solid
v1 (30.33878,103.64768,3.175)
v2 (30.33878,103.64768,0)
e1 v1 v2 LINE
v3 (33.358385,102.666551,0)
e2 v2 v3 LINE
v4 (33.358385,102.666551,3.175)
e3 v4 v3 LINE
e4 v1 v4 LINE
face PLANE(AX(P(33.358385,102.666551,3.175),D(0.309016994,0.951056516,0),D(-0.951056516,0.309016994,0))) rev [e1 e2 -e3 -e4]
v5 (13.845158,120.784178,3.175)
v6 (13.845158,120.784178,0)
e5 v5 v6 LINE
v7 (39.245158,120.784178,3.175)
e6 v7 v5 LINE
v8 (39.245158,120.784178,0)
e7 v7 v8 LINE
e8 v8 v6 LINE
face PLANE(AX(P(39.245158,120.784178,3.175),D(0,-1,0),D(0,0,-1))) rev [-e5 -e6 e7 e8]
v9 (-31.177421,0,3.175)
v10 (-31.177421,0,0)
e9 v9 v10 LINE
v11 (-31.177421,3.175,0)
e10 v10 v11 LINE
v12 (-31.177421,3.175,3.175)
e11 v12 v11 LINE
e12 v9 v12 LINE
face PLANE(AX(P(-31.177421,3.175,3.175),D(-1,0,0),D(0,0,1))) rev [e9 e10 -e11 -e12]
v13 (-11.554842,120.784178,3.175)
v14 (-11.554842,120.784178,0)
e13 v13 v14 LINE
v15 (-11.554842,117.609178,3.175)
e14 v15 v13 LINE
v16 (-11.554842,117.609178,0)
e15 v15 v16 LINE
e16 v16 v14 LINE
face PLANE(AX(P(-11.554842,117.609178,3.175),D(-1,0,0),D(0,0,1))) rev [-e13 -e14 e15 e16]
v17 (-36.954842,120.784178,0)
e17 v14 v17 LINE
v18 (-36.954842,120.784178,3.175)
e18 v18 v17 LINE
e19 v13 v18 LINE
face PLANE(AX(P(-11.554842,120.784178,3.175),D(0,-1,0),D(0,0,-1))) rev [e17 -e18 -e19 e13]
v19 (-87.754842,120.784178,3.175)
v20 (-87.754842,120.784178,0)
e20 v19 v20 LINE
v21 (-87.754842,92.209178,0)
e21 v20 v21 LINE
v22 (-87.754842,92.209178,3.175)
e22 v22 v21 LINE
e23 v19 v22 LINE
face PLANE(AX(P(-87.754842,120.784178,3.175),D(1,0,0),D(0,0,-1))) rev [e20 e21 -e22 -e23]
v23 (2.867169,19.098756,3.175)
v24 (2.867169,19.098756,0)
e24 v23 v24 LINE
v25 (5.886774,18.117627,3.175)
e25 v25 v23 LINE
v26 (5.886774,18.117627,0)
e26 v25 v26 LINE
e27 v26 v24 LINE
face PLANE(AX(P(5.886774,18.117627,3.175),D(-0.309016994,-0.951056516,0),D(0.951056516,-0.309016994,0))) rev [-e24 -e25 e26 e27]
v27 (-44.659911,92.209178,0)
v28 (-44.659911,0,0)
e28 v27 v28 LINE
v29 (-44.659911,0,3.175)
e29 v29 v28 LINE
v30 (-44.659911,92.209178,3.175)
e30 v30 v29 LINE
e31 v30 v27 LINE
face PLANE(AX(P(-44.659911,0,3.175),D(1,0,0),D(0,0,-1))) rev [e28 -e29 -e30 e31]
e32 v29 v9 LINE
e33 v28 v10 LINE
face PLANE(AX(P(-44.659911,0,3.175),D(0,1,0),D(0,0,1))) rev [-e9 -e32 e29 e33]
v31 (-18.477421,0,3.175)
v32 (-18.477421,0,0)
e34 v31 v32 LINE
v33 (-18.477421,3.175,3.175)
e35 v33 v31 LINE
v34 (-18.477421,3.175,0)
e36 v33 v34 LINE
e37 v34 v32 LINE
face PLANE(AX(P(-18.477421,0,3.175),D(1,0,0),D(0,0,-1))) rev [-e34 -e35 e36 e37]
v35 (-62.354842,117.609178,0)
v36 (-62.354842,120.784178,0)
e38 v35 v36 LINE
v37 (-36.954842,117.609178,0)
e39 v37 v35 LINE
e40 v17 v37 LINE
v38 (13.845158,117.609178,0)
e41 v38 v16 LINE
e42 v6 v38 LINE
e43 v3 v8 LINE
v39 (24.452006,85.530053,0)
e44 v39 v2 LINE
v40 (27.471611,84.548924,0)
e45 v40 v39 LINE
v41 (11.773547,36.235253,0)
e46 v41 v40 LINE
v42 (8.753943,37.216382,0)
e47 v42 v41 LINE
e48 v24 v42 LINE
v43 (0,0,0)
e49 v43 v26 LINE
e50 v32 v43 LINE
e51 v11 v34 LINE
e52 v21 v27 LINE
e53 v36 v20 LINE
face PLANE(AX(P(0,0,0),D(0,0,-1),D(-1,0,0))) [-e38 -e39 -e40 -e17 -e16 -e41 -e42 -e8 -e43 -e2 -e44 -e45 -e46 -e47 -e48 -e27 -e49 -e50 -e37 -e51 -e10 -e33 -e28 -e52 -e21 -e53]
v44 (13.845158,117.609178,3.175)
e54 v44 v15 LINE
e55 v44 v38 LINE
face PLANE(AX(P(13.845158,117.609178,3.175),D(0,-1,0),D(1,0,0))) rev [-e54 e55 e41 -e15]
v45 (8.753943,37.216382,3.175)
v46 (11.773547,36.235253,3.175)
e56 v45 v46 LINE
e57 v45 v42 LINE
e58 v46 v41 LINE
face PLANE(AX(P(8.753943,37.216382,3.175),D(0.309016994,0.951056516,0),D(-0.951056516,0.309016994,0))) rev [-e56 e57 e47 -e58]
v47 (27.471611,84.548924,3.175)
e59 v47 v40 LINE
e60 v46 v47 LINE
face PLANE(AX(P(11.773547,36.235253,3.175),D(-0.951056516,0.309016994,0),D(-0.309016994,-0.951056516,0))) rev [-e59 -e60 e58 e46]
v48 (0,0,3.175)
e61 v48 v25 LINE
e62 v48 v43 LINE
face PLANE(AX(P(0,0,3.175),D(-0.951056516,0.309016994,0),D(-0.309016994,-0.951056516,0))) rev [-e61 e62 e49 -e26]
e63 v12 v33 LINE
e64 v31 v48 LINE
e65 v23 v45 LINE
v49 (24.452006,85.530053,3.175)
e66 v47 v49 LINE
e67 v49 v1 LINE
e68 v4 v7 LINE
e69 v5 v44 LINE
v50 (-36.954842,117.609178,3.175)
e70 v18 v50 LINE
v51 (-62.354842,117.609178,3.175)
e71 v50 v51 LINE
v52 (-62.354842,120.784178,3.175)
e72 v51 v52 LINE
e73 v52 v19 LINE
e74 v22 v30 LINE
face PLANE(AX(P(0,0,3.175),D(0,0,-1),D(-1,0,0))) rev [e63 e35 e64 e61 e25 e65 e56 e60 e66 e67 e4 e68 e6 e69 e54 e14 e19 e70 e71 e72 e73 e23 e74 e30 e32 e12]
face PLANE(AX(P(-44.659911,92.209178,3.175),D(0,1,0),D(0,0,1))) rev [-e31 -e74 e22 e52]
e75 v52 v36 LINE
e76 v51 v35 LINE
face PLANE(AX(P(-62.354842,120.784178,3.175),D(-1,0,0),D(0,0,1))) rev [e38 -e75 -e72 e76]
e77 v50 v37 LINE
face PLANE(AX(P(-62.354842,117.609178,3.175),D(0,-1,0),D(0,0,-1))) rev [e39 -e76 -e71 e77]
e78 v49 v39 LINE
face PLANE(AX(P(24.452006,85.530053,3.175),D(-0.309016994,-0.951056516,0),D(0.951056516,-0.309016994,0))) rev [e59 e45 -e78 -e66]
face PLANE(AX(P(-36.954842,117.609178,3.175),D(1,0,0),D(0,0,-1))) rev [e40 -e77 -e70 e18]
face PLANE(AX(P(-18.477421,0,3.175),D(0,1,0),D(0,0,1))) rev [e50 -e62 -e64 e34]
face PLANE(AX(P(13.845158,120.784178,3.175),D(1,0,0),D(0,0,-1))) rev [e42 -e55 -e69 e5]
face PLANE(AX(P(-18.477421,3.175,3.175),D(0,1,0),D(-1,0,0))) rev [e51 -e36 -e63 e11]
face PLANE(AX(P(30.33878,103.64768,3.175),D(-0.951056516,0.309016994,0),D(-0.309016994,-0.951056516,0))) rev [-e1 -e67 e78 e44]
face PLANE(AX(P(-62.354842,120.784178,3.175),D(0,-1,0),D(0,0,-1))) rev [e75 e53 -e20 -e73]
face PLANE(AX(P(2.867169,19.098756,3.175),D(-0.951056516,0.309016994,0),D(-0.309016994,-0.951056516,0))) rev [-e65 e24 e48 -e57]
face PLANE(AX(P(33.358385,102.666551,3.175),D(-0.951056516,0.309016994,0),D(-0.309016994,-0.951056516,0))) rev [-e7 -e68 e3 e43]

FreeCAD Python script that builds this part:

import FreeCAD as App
import Part
import Sketcher
from FreeCAD import Vector
Q = App.Units.Quantity

doc = App.newDocument("Part")
params = doc.addObject("Spreadsheet::Sheet", "Params")
for row, (alias, value) in enumerate([
    ("sketch1_width", "1 in"),
    ("sketch1_length", "2 in"),
    ("sketch1_width2", "0.5 in"),
    ("sketch1_length2", "0.75 in"),
    ("sketch1_height", "0.125 in"),
    ("pad1_length", "0.125 in"),
], start=1):
    params.set(f"A{row}", alias)
    params.set(f"B{row}", "=" + value)
    params.setAlias(f"B{row}", alias)

body = doc.addObject("PartDesign::Body", "Body")

# Sketch on XY plane
sketch1 = doc.addObject("Sketcher::SketchObject", "Sketch")
body.addObject(sketch1)
sketch1.AttachmentSupport = (doc.XY_Plane, [""])
sketch1.MapMode = "FlatFace"
sketch1.addGeometry([
    Part.LineSegment(Vector(0, 0, 0), Vector(5.9, 18.1, 0)),  # 0
    Part.LineSegment(Vector(5.9, 18.1, 0), Vector(2.9, 19.1, 0)),  # 1
    Part.LineSegment(Vector(2.9, 19.1, 0), Vector(8.8, 37.2, 0)),  # 2
    Part.LineSegment(Vector(8.8, 37.2, 0), Vector(11.8, 36.2, 0)),  # 3
    Part.LineSegment(Vector(11.8, 36.2, 0), Vector(27.5, 84.5, 0)),  # 4
    Part.LineSegment(Vector(27.5, 84.5, 0), Vector(24.5, 85.5, 0)),  # 5
    Part.LineSegment(Vector(24.5, 85.5, 0), Vector(30.3, 103.6, 0)),  # 6
    Part.LineSegment(Vector(30.3, 103.6, 0), Vector(33.4, 102.7, 0)),  # 7
    Part.LineSegment(Vector(33.4, 102.7, 0), Vector(39.2, 120.8, 0)),  # 8
    Part.LineSegment(Vector(39.2, 120.8, 0), Vector(13.8, 120.8, 0)),  # 9
    Part.LineSegment(Vector(13.8, 120.8, 0), Vector(13.8, 117.6, 0)),  # 10
    Part.LineSegment(Vector(13.8, 117.6, 0), Vector(-11.6, 117.6, 0)),  # 11
    Part.LineSegment(Vector(-11.6, 117.6, 0), Vector(-11.6, 120.8, 0)),  # 12
    Part.LineSegment(Vector(-11.6, 120.8, 0), Vector(-37, 120.8, 0)),  # 13
    Part.LineSegment(Vector(-37, 120.8, 0), Vector(-37, 117.6, 0)),  # 14
    Part.LineSegment(Vector(-37, 117.6, 0), Vector(-62.4, 117.6, 0)),  # 15
    Part.LineSegment(Vector(-62.4, 117.6, 0), Vector(-62.4, 120.8, 0)),  # 16
    Part.LineSegment(Vector(-62.4, 120.8, 0), Vector(-87.8, 120.8, 0)),  # 17
    Part.LineSegment(Vector(-87.8, 120.8, 0), Vector(-87.8, 92.2, 0)),  # 18
    Part.LineSegment(Vector(-87.8, 92.2, 0), Vector(-44.7, 92.2, 0)),  # 19
    Part.LineSegment(Vector(-44.7, 92.2, 0), Vector(-44.7, 0, 0)),  # 20
    Part.LineSegment(Vector(-44.7, 0, 0), Vector(-31.2, 0, 0)),  # 21
    Part.LineSegment(Vector(-31.2, 0, 0), Vector(-31.2, 3.2, 0)),  # 22
    Part.LineSegment(Vector(-31.2, 3.2, 0), Vector(-18.5, 3.2, 0)),  # 23
    Part.LineSegment(Vector(-18.5, 3.2, 0), Vector(-18.5, 0, 0)),  # 24
    Part.LineSegment(Vector(-18.5, 0, 0), Vector(0, 0, 0)),  # 25
], False)
sketch1.addConstraint([
    Sketcher.Constraint("Coincident", 0, 2, 1, 1),
    Sketcher.Constraint("Coincident", 1, 2, 2, 1),
    Sketcher.Constraint("Coincident", 2, 2, 3, 1),
    Sketcher.Constraint("Coincident", 3, 2, 4, 1),
    Sketcher.Constraint("Coincident", 4, 2, 5, 1),
    Sketcher.Constraint("Coincident", 5, 2, 6, 1),
    Sketcher.Constraint("Coincident", 6, 2, 7, 1),
    Sketcher.Constraint("Coincident", 7, 2, 8, 1),
    Sketcher.Constraint("Coincident", 8, 2, 9, 1),
    Sketcher.Constraint("Coincident", 9, 2, 10, 1),
    Sketcher.Constraint("Coincident", 10, 2, 11, 1),
    Sketcher.Constraint("Coincident", 11, 2, 12, 1),
    Sketcher.Constraint("Coincident", 12, 2, 13, 1),
    Sketcher.Constraint("Coincident", 13, 2, 14, 1),
    Sketcher.Constraint("Coincident", 14, 2, 15, 1),
    Sketcher.Constraint("Coincident", 15, 2, 16, 1),
    Sketcher.Constraint("Coincident", 16, 2, 17, 1),
    Sketcher.Constraint("Coincident", 17, 2, 18, 1),
    Sketcher.Constraint("Coincident", 18, 2, 19, 1),
    Sketcher.Constraint("Coincident", 19, 2, 20, 1),
    Sketcher.Constraint("Coincident", 20, 2, 21, 1),
    Sketcher.Constraint("Coincident", 21, 2, 22, 1),
    Sketcher.Constraint("Coincident", 22, 2, 23, 1),
    Sketcher.Constraint("Coincident", 23, 2, 24, 1),
    Sketcher.Constraint("Coincident", 24, 2, 25, 1),
    Sketcher.Constraint("Coincident", 25, 2, 0, 1),
    Sketcher.Constraint("Horizontal", 9),
    Sketcher.Constraint("Vertical", 10),
    Sketcher.Constraint("Horizontal", 11),
    Sketcher.Constraint("Vertical", 12),
    Sketcher.Constraint("Horizontal", 13),
    Sketcher.Constraint("Vertical", 14),
    Sketcher.Constraint("Horizontal", 15),
    Sketcher.Constraint("Vertical", 16),
    Sketcher.Constraint("Horizontal", 17),
    Sketcher.Constraint("Vertical", 18),
    Sketcher.Constraint("Horizontal", 19),
    Sketcher.Constraint("Vertical", 20),
    Sketcher.Constraint("Horizontal", 21),
    Sketcher.Constraint("Vertical", 22),
    Sketcher.Constraint("Horizontal", 23),
    Sketcher.Constraint("Vertical", 24),
    Sketcher.Constraint("Horizontal", 25),
    Sketcher.Constraint("Coincident", 25, 2, -1, 1),
    Sketcher.Constraint("PointOnObject", 20, 2, -1),
    Sketcher.Constraint("Perpendicular", 0, 1),
    Sketcher.Constraint("Perpendicular", 1, 2),
    Sketcher.Constraint("Perpendicular", 2, 3),
    Sketcher.Constraint("Perpendicular", 3, 4),
    Sketcher.Constraint("Perpendicular", 4, 5),
    Sketcher.Constraint("Perpendicular", 5, 6),
    Sketcher.Constraint("Perpendicular", 6, 7),
    Sketcher.Constraint("Perpendicular", 7, 8),
    Sketcher.Constraint("Horizontal", 9, 2, 12, 2),
    Sketcher.Constraint("Horizontal", 11, 2, 14, 2),
    Sketcher.Constraint("Horizontal", 13, 2, 16, 2),
    Sketcher.Constraint("Equal", 9, 11),
    Sketcher.Constraint("Equal", 11, 13),
    Sketcher.Constraint("Equal", 13, 15),
    Sketcher.Constraint("Equal", 15, 17),
    Sketcher.Constraint("Equal", 16, 22),
    Sketcher.Constraint("Equal", 0, 2),
    Sketcher.Constraint("Equal", 1, 3),
    Sketcher.Constraint("Equal", 3, 5),
    Sketcher.Constraint("Equal", 2, 6),
    Sketcher.Constraint("Equal", 5, 7),
    Sketcher.Constraint("Equal", 6, 8),
    Sketcher.Constraint("DistanceX", 9, 2, 9, 1, Q("1 in")),
    Sketcher.Constraint("Distance", 4, Q("2 in")),
    Sketcher.Constraint("DistanceX", 23, 1, 23, 2, Q("0.5 in")),
    Sketcher.Constraint("Angle", 0, Q("72 deg")),
    Sketcher.Constraint("DistanceY", 18, 2, 15, 2, Q("1 in")),
    Sketcher.Constraint("Distance", 0, Q("0.75 in")),
    Sketcher.Constraint("DistanceY", 10, 2, 10, 1, Q("0.125 in")),
    Sketcher.Constraint("Distance", 1, Q("0.125 in")),
    Sketcher.Constraint("DistanceX", 19, 1, 19, 2, Q("43.094931 mm")),
    Sketcher.Constraint("DistanceX", 21, 1, 21, 2, Q("13.48249 mm")),
])
sketch1.setExpression("Constraints[67]", "Params.sketch1_width")
sketch1.setExpression("Constraints[68]", "Params.sketch1_length")
sketch1.setExpression("Constraints[69]", "Params.sketch1_width2")
sketch1.setExpression("Constraints[72]", "Params.sketch1_length2")
sketch1.setExpression("Constraints[73]", "Params.sketch1_height")
pad1 = doc.addObject("PartDesign::Pad", "Pad")
body.addObject(pad1)
pad1.Profile = sketch1
pad1.setExpression("Length", "Params.pad1_length")

doc.recompute()
